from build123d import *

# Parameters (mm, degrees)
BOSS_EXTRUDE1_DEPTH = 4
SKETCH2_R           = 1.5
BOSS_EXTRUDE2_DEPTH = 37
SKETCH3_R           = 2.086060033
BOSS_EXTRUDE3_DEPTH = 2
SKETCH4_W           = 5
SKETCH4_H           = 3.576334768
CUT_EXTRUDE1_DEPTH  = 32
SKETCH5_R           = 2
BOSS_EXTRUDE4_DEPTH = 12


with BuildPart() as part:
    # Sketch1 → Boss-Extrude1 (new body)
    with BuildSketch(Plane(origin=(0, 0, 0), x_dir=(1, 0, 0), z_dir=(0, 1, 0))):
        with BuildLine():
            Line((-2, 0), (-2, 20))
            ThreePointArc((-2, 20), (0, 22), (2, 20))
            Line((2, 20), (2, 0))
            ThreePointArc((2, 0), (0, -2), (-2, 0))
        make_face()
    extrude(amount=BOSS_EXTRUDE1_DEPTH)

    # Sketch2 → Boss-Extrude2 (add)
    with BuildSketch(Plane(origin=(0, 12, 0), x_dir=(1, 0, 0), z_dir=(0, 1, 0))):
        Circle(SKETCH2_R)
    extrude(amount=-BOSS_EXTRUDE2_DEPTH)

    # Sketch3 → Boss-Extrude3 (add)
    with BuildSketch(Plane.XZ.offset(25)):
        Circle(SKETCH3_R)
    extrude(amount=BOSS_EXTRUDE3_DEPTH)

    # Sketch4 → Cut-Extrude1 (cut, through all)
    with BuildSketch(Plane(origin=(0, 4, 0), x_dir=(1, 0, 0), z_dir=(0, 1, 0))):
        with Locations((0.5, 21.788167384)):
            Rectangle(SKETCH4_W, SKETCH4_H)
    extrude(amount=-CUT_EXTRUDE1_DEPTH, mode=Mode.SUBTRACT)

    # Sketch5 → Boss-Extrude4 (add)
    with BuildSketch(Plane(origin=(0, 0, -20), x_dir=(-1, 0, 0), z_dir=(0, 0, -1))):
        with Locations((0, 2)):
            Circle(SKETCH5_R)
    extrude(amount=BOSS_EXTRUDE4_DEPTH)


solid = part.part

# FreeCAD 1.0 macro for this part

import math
import FreeCAD as App
import Part
import Sketcher
Q = App.Units.Quantity


def add_polygon(sketch, points):
    """Adds a closed chain of lines whose ends are joined by coincident constraints."""
    first, n = sketch.GeometryCount, len(points)
    for a, b in zip(points, points[1:] + points[:1]):
        sketch.addGeometry(Part.LineSegment(App.Vector(*a, 0), App.Vector(*b, 0)), False)
    for i in range(n):
        sketch.addConstraint(Sketcher.Constraint("Coincident", first + i, 2, first + (i + 1) % n, 1))

doc = App.newDocument("Part")
body = doc.addObject("PartDesign::Body", "Body")

sketch1 = body.newObject("Sketcher::SketchObject", "Sketch")
sketch1.AttachmentSupport = (doc.getObject("XZ_Plane"), [""])
sketch1.MapMode = "FlatFace"
sketch1.addGeometry([
    Part.LineSegment(App.Vector(-2, -20, 0), App.Vector(-2, 0, 0)),
    Part.ArcOfCircle(Part.Circle(App.Vector(0, 0, 0), App.Vector(0, 0, 1), 2), math.radians(0), math.radians(180)),
    Part.LineSegment(App.Vector(2, 0, 0), App.Vector(2, -20, 0)),
    Part.ArcOfCircle(Part.Circle(App.Vector(0, -20, 0), App.Vector(0, 0, 1), 2), math.radians(180), math.radians(360)),
], False)
sketch1.addConstraint([
    Sketcher.Constraint("Tangent", 0, 2, 1, 2),
    Sketcher.Constraint("Tangent", 1, 1, 2, 1),
    Sketcher.Constraint("Tangent", 2, 2, 3, 2),
    Sketcher.Constraint("Tangent", 3, 1, 0, 1),
    Sketcher.Constraint("Vertical", 0),
    Sketcher.Constraint("Vertical", 2),
    Sketcher.Constraint("Coincident", 1, 3, -1, 1),
    Sketcher.Constraint("Radius", 1, Q("2 mm")),
    Sketcher.Constraint("DistanceY", 0, 1, 0, 2, Q("20 mm")),
])
pad1 = body.newObject("PartDesign::Pad", "Pad")
pad1.Profile = sketch1
pad1.Length = 4
pad1.Reversed = True

sketch2 = body.newObject("Sketcher::SketchObject", "Sketch001")
sketch2.AttachmentSupport = (doc.getObject("XZ_Plane"), [""])
sketch2.MapMode = "FlatFace"
sketch2.AttachmentOffset = App.Placement(App.Vector(0, 0, -12), App.Rotation())
sketch2.addGeometry(Part.Circle(App.Vector(0, 0, 0), App.Vector(0, 0, 1), 1.5), False)
sketch2.addConstraint([
    Sketcher.Constraint("Coincident", 0, 3, -1, 1),
    Sketcher.Constraint("Diameter", 0, Q("3 mm")),
])
pad2 = body.newObject("PartDesign::Pad", "Pad001")
pad2.Profile = sketch2
pad2.Length = 37

sketch3 = body.newObject("Sketcher::SketchObject", "Sketch002")
sketch3.AttachmentSupport = (doc.getObject("XZ_Plane"), [""])
sketch3.MapMode = "FlatFace"
sketch3.AttachmentOffset = App.Placement(App.Vector(0, 0, 25), App.Rotation())
sketch3.addGeometry(Part.Circle(App.Vector(0, 0, 0), App.Vector(0, 0, 1), 2.1), False)
sketch3.addConstraint([
    Sketcher.Constraint("Coincident", 0, 3, -1, 1),
    Sketcher.Constraint("Diameter", 0, Q("4.17212 mm")),
])
pad3 = body.newObject("PartDesign::Pad", "Pad002")
pad3.Profile = sketch3
pad3.Length = 2

sketch4 = body.newObject("Sketcher::SketchObject", "Sketch003")
sketch4.AttachmentSupport = (doc.getObject("XZ_Plane"), [""])
sketch4.MapMode = "FlatFace"
sketch4.AttachmentOffset = App.Placement(App.Vector(0, 0, -4), App.Rotation())
add_polygon(sketch4, [(-2, -23.6), (-2, -20), (3, -20), (3, -23.6)])
sketch4.addConstraint([
    Sketcher.Constraint("Vertical", 0),
    Sketcher.Constraint("Horizontal", 1),
    Sketcher.Constraint("Vertical", 2),
    Sketcher.Constraint("Horizontal", 3),
    Sketcher.Constraint("DistanceX", 1, 1, 1, 2, Q("5 mm")),
    Sketcher.Constraint("DistanceX", 0, 2, -1, 1, Q("2 mm")),
    Sketcher.Constraint("DistanceY", 0, 2, -1, 1, Q("20 mm")),
    Sketcher.Constraint("DistanceY", 0, 1, 0, 2, Q("3.576335 mm")),
])
pocket1 = body.newObject("PartDesign::Pocket", "Pocket")
pocket1.Profile = sketch4
pocket1.Type = "ThroughAll"
pocket1.Reversed = True

sketch5 = body.newObject("Sketcher::SketchObject", "Sketch004")
sketch5.AttachmentSupport = (doc.getObject("XY_Plane"), [""])
sketch5.MapMode = "FlatFace"
sketch5.AttachmentOffset = App.Placement(App.Vector(0, 0, -20), App.Rotation())
sketch5.addGeometry(Part.Circle(App.Vector(0, 2, 0), App.Vector(0, 0, 1), 2), False)
sketch5.addConstraint([
    Sketcher.Constraint("PointOnObject", 0, 3, -2),
    Sketcher.Constraint("Diameter", 0, Q("4 mm")),
    Sketcher.Constraint("DistanceY", -1, 1, 0, 3, Q("2 mm")),
])
pad4 = body.newObject("PartDesign::Pad", "Pad003")
pad4.Profile = sketch5
pad4.Length = 12
pad4.Reversed = True

doc.recompute()
